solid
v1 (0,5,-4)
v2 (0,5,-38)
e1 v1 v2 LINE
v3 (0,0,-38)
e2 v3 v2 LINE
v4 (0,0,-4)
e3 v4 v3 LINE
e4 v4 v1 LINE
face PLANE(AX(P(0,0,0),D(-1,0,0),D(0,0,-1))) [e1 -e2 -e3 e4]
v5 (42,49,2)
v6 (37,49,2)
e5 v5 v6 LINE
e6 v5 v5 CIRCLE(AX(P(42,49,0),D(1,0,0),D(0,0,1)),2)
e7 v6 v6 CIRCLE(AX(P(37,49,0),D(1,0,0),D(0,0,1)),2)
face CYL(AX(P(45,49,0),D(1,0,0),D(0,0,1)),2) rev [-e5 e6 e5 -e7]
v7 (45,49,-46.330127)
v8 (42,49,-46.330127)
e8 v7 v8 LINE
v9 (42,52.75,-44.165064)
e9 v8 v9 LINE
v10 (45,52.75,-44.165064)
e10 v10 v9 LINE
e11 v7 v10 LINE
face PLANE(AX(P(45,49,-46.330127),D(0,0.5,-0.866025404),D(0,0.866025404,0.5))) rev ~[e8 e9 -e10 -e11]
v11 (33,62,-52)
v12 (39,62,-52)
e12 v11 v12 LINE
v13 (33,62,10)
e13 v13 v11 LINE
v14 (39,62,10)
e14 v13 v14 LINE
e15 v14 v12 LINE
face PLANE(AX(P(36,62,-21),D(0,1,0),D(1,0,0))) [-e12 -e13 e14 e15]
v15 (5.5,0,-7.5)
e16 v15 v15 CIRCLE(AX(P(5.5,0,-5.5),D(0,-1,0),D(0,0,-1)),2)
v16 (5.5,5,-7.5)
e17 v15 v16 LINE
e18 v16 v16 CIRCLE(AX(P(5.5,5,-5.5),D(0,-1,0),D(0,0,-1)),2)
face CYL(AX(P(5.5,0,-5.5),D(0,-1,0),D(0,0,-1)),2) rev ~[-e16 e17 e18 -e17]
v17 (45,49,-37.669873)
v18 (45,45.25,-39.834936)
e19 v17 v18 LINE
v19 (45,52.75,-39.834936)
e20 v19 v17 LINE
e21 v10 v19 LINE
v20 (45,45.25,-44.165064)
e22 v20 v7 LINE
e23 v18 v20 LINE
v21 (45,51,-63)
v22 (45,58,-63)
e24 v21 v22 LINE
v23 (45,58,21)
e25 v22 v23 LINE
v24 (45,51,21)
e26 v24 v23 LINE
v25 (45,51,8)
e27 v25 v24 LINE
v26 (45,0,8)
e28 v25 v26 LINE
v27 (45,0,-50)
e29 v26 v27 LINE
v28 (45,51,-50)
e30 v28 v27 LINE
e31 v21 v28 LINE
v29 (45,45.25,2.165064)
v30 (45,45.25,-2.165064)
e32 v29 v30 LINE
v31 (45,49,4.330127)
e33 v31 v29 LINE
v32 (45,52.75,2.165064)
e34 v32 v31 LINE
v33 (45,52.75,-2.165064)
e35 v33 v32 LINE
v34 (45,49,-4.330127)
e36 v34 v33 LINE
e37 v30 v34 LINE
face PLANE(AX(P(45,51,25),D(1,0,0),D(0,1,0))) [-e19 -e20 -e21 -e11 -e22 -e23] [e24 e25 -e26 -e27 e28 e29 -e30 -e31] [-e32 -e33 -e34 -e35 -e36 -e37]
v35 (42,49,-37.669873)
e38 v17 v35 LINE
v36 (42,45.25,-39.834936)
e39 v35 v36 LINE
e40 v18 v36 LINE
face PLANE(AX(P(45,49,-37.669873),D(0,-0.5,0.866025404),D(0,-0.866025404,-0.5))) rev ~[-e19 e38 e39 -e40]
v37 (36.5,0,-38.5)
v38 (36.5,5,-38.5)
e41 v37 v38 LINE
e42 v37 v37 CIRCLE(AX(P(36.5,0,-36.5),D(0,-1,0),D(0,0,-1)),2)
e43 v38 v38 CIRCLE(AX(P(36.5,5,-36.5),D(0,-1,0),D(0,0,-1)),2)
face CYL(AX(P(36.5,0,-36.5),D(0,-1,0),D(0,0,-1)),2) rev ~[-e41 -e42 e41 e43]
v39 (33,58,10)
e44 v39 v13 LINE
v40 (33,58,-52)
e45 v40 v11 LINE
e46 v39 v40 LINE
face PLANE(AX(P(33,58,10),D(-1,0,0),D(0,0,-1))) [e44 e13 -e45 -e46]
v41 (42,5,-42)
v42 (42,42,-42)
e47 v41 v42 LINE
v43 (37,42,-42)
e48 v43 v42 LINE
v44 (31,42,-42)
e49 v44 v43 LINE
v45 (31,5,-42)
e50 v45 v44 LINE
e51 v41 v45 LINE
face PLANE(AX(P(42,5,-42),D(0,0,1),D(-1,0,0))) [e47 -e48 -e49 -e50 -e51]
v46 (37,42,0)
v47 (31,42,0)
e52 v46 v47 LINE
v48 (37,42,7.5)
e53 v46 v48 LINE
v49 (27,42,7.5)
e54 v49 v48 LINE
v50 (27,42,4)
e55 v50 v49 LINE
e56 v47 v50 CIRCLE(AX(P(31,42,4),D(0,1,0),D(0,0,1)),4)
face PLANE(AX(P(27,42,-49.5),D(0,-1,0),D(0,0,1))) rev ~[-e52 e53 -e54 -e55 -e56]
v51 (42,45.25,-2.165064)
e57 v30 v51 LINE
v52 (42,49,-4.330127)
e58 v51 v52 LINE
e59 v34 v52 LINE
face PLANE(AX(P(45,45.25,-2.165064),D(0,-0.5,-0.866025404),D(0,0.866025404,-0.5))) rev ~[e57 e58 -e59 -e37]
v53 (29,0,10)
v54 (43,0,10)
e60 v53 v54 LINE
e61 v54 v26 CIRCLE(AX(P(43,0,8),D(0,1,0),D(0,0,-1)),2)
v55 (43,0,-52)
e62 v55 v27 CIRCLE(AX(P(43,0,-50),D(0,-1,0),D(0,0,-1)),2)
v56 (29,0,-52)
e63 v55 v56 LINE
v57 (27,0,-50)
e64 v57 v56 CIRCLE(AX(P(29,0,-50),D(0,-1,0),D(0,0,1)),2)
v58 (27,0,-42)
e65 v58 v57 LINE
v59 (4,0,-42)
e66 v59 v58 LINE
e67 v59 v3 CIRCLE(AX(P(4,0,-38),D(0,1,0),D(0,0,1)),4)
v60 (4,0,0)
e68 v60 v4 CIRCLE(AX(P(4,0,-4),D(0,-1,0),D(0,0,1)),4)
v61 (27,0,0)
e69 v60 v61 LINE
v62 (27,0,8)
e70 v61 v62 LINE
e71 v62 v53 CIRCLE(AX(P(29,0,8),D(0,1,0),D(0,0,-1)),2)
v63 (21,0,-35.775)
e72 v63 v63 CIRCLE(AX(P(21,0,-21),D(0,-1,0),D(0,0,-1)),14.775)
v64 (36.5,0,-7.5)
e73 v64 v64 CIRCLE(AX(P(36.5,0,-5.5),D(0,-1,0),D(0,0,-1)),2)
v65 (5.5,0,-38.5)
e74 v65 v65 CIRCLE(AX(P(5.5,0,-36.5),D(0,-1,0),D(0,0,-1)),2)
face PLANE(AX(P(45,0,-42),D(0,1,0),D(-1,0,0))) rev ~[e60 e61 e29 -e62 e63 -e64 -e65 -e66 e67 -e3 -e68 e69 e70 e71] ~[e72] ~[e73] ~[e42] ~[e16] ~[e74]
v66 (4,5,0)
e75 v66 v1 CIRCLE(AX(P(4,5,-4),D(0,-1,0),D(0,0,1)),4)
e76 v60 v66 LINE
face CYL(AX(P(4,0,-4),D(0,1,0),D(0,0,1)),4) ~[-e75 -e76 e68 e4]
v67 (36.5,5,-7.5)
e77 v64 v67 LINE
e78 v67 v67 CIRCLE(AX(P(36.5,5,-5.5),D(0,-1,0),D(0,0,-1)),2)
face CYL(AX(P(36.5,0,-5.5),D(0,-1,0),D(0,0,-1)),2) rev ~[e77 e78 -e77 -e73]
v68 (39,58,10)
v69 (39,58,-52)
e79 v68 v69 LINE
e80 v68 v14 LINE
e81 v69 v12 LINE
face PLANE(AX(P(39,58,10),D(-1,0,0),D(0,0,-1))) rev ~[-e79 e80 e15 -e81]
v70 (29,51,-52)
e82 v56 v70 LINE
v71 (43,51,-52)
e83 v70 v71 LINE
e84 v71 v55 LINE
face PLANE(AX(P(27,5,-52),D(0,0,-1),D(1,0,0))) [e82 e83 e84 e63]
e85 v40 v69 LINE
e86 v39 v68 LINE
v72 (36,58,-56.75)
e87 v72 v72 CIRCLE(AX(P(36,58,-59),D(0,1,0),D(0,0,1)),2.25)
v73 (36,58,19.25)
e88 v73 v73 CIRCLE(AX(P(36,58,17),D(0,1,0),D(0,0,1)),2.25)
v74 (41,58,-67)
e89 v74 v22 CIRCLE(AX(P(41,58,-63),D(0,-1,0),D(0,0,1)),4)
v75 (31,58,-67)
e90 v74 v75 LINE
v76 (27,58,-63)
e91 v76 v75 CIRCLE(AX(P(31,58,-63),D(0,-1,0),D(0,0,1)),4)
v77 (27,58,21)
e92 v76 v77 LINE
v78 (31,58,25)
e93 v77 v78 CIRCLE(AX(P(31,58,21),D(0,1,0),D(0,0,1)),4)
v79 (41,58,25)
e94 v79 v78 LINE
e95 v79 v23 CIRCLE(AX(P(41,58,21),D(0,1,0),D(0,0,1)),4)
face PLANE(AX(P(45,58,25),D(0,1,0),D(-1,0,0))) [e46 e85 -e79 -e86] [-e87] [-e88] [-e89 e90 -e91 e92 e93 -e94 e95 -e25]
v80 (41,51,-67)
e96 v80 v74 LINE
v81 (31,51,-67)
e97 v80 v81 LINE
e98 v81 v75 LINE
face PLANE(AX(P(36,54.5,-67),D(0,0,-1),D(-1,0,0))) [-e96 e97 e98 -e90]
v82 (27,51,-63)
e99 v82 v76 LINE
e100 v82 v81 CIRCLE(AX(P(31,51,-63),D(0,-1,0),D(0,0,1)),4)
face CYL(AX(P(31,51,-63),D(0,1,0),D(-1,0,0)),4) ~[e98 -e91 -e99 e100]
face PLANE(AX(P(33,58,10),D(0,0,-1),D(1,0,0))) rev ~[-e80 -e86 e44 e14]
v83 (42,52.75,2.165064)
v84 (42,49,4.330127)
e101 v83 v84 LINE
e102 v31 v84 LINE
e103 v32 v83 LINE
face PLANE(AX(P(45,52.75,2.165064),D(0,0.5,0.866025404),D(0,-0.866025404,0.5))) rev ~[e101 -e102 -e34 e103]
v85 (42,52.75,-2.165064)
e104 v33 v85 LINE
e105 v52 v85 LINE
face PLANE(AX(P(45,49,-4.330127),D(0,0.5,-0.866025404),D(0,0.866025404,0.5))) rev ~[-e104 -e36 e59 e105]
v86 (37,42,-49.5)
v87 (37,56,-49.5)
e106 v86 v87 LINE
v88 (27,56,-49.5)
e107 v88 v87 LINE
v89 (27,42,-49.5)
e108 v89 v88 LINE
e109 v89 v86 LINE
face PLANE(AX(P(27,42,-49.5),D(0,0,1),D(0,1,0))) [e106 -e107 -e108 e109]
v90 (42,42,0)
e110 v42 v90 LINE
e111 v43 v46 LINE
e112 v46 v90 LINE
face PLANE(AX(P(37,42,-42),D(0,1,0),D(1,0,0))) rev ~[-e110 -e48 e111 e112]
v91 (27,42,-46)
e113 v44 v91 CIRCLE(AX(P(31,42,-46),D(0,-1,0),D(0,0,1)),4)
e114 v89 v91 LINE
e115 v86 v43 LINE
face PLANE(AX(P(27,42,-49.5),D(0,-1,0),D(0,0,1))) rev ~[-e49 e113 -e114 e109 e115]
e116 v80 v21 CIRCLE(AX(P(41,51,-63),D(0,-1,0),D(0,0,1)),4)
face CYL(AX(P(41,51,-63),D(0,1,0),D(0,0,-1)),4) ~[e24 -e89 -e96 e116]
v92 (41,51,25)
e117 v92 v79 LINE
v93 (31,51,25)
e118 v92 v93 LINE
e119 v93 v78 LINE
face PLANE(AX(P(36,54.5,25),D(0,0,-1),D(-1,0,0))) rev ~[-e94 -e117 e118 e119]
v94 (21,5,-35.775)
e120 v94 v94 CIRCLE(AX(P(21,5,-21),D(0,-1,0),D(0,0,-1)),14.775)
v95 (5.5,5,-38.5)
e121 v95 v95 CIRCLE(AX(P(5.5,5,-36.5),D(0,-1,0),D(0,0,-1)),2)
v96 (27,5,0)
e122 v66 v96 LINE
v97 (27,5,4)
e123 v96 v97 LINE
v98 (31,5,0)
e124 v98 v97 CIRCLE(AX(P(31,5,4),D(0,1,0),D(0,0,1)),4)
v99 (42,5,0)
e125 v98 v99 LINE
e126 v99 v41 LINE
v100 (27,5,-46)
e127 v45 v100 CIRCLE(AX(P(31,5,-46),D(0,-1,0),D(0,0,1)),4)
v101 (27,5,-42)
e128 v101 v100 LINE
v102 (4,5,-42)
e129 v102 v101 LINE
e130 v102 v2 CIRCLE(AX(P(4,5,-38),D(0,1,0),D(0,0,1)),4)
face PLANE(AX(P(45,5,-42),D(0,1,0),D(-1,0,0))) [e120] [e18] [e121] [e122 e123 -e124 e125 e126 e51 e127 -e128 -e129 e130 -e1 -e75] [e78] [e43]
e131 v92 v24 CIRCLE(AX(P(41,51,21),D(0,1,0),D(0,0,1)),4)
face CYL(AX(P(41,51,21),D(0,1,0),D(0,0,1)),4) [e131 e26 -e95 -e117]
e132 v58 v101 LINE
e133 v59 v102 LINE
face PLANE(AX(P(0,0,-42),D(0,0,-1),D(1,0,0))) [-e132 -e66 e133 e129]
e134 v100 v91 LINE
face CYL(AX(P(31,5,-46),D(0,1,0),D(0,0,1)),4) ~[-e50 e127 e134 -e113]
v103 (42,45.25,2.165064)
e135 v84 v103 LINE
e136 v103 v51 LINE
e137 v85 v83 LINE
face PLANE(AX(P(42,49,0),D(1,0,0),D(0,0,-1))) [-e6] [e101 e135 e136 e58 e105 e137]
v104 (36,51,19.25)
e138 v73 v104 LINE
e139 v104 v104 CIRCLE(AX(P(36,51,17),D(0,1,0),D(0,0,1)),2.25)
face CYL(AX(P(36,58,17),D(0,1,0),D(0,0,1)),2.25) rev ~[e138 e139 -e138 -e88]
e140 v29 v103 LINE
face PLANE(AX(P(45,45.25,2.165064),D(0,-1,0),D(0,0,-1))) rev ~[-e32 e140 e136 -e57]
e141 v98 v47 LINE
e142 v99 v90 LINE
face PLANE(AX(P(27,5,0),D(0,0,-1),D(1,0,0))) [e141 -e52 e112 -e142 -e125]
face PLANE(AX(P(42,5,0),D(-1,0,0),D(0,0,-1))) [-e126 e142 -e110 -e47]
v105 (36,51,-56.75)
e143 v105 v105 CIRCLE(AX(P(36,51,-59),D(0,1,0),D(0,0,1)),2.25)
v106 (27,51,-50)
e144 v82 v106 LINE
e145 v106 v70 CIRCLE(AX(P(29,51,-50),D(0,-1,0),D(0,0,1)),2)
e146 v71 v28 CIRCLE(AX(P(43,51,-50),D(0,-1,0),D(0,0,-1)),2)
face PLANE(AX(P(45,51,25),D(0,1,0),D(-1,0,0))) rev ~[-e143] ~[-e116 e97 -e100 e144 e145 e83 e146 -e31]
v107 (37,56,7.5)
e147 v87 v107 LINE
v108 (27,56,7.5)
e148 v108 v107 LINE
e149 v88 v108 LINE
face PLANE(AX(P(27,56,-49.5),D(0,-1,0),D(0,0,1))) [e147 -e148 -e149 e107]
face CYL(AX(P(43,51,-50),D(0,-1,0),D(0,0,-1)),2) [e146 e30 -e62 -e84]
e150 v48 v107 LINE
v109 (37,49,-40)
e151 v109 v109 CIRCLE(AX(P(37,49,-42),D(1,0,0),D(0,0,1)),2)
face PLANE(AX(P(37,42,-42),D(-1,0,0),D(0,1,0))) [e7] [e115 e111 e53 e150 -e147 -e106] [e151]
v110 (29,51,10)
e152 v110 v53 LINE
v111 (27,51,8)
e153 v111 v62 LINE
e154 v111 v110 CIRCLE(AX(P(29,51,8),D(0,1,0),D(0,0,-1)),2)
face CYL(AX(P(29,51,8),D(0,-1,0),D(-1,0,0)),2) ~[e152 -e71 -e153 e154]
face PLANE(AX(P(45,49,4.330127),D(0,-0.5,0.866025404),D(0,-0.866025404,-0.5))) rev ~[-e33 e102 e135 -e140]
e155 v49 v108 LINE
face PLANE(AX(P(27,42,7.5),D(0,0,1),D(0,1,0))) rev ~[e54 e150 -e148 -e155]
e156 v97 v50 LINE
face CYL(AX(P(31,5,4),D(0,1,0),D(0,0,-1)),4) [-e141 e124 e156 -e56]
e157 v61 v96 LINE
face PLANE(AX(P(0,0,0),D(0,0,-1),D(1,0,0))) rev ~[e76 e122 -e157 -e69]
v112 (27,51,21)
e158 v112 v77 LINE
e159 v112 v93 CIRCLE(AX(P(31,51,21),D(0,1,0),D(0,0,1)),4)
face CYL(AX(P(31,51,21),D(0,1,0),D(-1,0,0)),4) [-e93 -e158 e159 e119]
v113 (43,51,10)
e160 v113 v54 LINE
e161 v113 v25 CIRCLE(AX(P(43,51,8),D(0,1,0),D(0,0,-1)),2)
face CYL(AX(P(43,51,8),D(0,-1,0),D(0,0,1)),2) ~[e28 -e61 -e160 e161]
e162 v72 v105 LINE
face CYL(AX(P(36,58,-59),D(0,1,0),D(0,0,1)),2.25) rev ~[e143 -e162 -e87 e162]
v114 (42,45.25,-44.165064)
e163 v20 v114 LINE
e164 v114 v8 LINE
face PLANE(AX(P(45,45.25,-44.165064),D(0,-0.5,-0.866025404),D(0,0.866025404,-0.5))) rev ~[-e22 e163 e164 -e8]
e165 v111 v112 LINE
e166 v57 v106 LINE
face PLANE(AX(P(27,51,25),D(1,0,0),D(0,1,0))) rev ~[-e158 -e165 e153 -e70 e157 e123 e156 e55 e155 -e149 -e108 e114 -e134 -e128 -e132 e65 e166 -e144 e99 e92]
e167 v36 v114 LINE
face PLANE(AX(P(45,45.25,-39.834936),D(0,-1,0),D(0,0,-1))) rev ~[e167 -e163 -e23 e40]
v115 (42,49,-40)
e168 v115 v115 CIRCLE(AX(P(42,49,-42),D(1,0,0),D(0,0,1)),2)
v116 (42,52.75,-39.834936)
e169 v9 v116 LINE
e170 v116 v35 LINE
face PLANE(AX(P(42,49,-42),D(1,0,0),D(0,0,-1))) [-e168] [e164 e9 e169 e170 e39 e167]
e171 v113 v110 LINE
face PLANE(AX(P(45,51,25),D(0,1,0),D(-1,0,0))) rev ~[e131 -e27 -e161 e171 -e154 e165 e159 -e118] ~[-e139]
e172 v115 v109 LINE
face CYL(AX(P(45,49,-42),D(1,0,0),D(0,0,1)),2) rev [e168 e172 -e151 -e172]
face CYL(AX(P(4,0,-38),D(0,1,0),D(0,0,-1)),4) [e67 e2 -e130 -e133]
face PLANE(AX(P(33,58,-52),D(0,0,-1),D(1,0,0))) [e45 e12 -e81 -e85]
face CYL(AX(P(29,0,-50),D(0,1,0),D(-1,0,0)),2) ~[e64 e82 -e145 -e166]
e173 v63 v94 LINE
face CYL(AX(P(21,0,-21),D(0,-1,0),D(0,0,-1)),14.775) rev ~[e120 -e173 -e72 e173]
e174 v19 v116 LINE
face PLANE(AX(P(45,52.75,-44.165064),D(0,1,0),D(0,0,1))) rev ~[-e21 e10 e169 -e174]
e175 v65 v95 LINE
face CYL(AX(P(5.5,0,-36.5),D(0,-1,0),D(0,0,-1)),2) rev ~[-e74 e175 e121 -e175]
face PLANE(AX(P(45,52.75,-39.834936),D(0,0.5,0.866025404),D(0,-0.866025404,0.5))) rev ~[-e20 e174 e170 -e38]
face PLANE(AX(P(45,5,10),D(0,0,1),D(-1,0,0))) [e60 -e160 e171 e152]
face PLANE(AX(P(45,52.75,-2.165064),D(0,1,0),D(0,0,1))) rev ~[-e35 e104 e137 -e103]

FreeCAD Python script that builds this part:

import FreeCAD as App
import Part
import Sketcher
Q = App.Units.Quantity


def edges_at(feature, points):
    """Names of the edges that pass closest to the given points."""
    edges = feature.Shape.Edges
    near = lambda p: min(range(len(edges)), key=lambda i: edges[i].distToShape(Part.Vertex(*p))[0])
    return sorted({f"Edge{near(p) + 1}" for p in points})

doc = App.newDocument("Part")
body = doc.addObject("PartDesign::Body", "Body")

sketch1 = doc.addObject("Sketcher::SketchObject", "Sketch")
body.addObject(sketch1)
sketch1.AttachmentSupport = (doc.XZ_Plane, [""])
sketch1.MapMode = "FlatFace"
sketch1.addGeometry(Part.LineSegment(App.Vector(0, -42, 0), App.Vector(0, 0, 0)), False)
sketch1.addGeometry(Part.LineSegment(App.Vector(0, 0, 0), App.Vector(45, 0, 0)), False)
sketch1.addGeometry(Part.LineSegment(App.Vector(45, 0, 0), App.Vector(45, -42, 0)), False)
sketch1.addGeometry(Part.LineSegment(App.Vector(45, -42, 0), App.Vector(0, -42, 0)), False)
sketch1.addConstraint(Sketcher.Constraint("Coincident", 0, 2, 1, 1))
sketch1.addConstraint(Sketcher.Constraint("Coincident", 1, 2, 2, 1))
sketch1.addConstraint(Sketcher.Constraint("Coincident", 2, 2, 3, 1))
sketch1.addConstraint(Sketcher.Constraint("Coincident", 3, 2, 0, 1))
sketch1.addConstraint(Sketcher.Constraint("Vertical", 0))
sketch1.addConstraint(Sketcher.Constraint("Horizontal", 1))
sketch1.addConstraint(Sketcher.Constraint("Vertical", 2))
sketch1.addConstraint(Sketcher.Constraint("Horizontal", 3))
sketch1.addConstraint(Sketcher.Constraint("Coincident", 0, 2, -1, 1))
sketch1.addConstraint(Sketcher.Constraint("DistanceX", 1, 1, 1, 2, Q("45 mm")))
sketch1.addConstraint(Sketcher.Constraint("DistanceY", 0, 1, 0, 2, Q("42 mm")))
pad1 = doc.addObject("PartDesign::Pad", "Pad")
body.addObject(pad1)
pad1.Profile = sketch1
pad1.Length = 5
pad1.Reversed = True

sketch2 = doc.addObject("Sketcher::SketchObject", "Sketch001")
body.addObject(sketch2)
sketch2.AttachmentSupport = (doc.XZ_Plane, [""])
sketch2.MapMode = "FlatFace"
sketch2.addGeometry(Part.Circle(App.Vector(21, -21, 0), App.Vector(0, 0, 1), 14.8), False)
sketch2.addGeometry(Part.Circle(App.Vector(36.5, -5.5, 0), App.Vector(0, 0, 1), 2), False)
sketch2.addGeometry(Part.Circle(App.Vector(5.5, -5.5, 0), App.Vector(0, 0, 1), 2), False)
sketch2.addGeometry(Part.Circle(App.Vector(5.5, -36.5, 0), App.Vector(0, 0, 1), 2), False)
sketch2.addGeometry(Part.Circle(App.Vector(36.5, -36.5, 0), App.Vector(0, 0, 1), 2), False)
sketch2.addConstraint(Sketcher.Constraint("Equal", 1, 2))
sketch2.addConstraint(Sketcher.Constraint("Equal", 2, 3))
sketch2.addConstraint(Sketcher.Constraint("Equal", 3, 4))
sketch2.addConstraint(Sketcher.Constraint("Horizontal", 1, 3, 2, 3))
sketch2.addConstraint(Sketcher.Constraint("Horizontal", 3, 3, 4, 3))
sketch2.addConstraint(Sketcher.Constraint("Vertical", 2, 3, 3, 3))
sketch2.addConstraint(Sketcher.Constraint("Vertical", 1, 3, 4, 3))
sketch2.addConstraint(Sketcher.Constraint("Diameter", 1, Q("4 mm")))
sketch2.addConstraint(Sketcher.Constraint("Diameter", 0, Q("29.55 mm")))
sketch2.addConstraint(Sketcher.Constraint("DistanceX", -1, 1, 0, 3, Q("21 mm")))
sketch2.addConstraint(Sketcher.Constraint("DistanceY", 0, 3, -1, 1, Q("21 mm")))
sketch2.addConstraint(Sketcher.Constraint("DistanceX", 2, 3, 1, 3, Q("31 mm")))
sketch2.addConstraint(Sketcher.Constraint("DistanceY", 3, 3, 2, 3, Q("31 mm")))
sketch2.addConstraint(Sketcher.Constraint("DistanceX", -1, 1, 1, 3, Q("36.5 mm")))
sketch2.addConstraint(Sketcher.Constraint("DistanceY", 1, 3, -1, 1, Q("5.5 mm")))
pocket1 = doc.addObject("PartDesign::Pocket", "Pocket")
body.addObject(pocket1)
pocket1.Profile = sketch2
pocket1.Length = 13

sketch3 = doc.addObject("Sketcher::SketchObject", "Sketch002")
body.addObject(sketch3)
sketch3.AttachmentSupport = (doc.XY_Plane, [""])
sketch3.MapMode = "FlatFace"
sketch3.addGeometry(Part.LineSegment(App.Vector(27, 5, 0), App.Vector(27, 0, 0)), False)
sketch3.addGeometry(Part.LineSegment(App.Vector(27, 0, 0), App.Vector(45, 0, 0)), False)
sketch3.addGeometry(Part.LineSegment(App.Vector(45, 0, 0), App.Vector(45, 5, 0)), False)
sketch3.addGeometry(Part.LineSegment(App.Vector(45, 5, 0), App.Vector(27, 5, 0)), False)
sketch3.addConstraint(Sketcher.Constraint("Coincident", 0, 2, 1, 1))
sketch3.addConstraint(Sketcher.Constraint("Coincident", 1, 2, 2, 1))
sketch3.addConstraint(Sketcher.Constraint("Coincident", 2, 2, 3, 1))
sketch3.addConstraint(Sketcher.Constraint("Coincident", 3, 2, 0, 1))
sketch3.addConstraint(Sketcher.Constraint("Vertical", 0))
sketch3.addConstraint(Sketcher.Constraint("Horizontal", 1))
sketch3.addConstraint(Sketcher.Constraint("Vertical", 2))
sketch3.addConstraint(Sketcher.Constraint("Horizontal", 3))
sketch3.addConstraint(Sketcher.Constraint("PointOnObject", 0, 2, -1))
sketch3.addConstraint(Sketcher.Constraint("DistanceX", 1, 1, 1, 2, Q("18 mm")))
sketch3.addConstraint(Sketcher.Constraint("DistanceY", 0, 2, 0, 1, Q("5 mm")))
sketch3.addConstraint(Sketcher.Constraint("DistanceX", -1, 1, 0, 2, Q("27 mm")))
pad2 = doc.addObject("PartDesign::Pad", "Pad001")
body.addObject(pad2)
pad2.Profile = sketch3
pad2.Length = 10

sketch4 = doc.addObject("Sketcher::SketchObject", "Sketch003")
body.addObject(sketch4)
sketch4.AttachmentSupport = (doc.XY_Plane, [""])
sketch4.MapMode = "FlatFace"
sketch4.AttachmentOffset = App.Placement(App.Vector(0, 0, -42), App.Rotation())
sketch4.addGeometry(Part.LineSegment(App.Vector(45, 5, 0), App.Vector(45, 0, 0)), False)
sketch4.addGeometry(Part.LineSegment(App.Vector(45, 0, 0), App.Vector(27, 0, 0)), False)
sketch4.addGeometry(Part.LineSegment(App.Vector(27, 0, 0), App.Vector(27, 5, 0)), False)
sketch4.addGeometry(Part.LineSegment(App.Vector(27, 5, 0), App.Vector(45, 5, 0)), False)
sketch4.addConstraint(Sketcher.Constraint("Coincident", 0, 2, 1, 1))
sketch4.addConstraint(Sketcher.Constraint("Coincident", 1, 2, 2, 1))
sketch4.addConstraint(Sketcher.Constraint("Coincident", 2, 2, 3, 1))
sketch4.addConstraint(Sketcher.Constraint("Coincident", 3, 2, 0, 1))
sketch4.addConstraint(Sketcher.Constraint("Vertical", 0))
sketch4.addConstraint(Sketcher.Constraint("Horizontal", 1))
sketch4.addConstraint(Sketcher.Constraint("Vertical", 2))
sketch4.addConstraint(Sketcher.Constraint("Horizontal", 3))
sketch4.addConstraint(Sketcher.Constraint("PointOnObject", 0, 2, -1))
sketch4.addConstraint(Sketcher.Constraint("DistanceX", 1, 2, 1, 1, Q("18 mm")))
sketch4.addConstraint(Sketcher.Constraint("DistanceY", 0, 2, 0, 1, Q("5 mm")))
sketch4.addConstraint(Sketcher.Constraint("DistanceX", -1, 1, 0, 2, Q("45 mm")))
pad3 = doc.addObject("PartDesign::Pad", "Pad002")
body.addObject(pad3)
pad3.Profile = sketch4
pad3.Length = 10
pad3.Reversed = True

sketch5 = doc.addObject("Sketcher::SketchObject", "Sketch004")
body.addObject(sketch5)
sketch5.AttachmentSupport = (doc.XZ_Plane, [""])
sketch5.MapMode = "FlatFace"
sketch5.AttachmentOffset = App.Placement(App.Vector(0, 0, -5), App.Rotation())
sketch5.addGeometry(Part.LineSegment(App.Vector(45, -52, 0), App.Vector(27, -52, 0)), False)
sketch5.addGeometry(Part.LineSegment(App.Vector(27, -52, 0), App.Vector(27, -42, 0)), False)
sketch5.addGeometry(Part.LineSegment(App.Vector(27, -42, 0), App.Vector(42, -42, 0)), False)
sketch5.addGeometry(Part.LineSegment(App.Vector(42, -42, 0), App.Vector(42, 0, 0)), False)
sketch5.addGeometry(Part.LineSegment(App.Vector(42, 0, 0), App.Vector(27, 0, 0)), False)
sketch5.addGeometry(Part.LineSegment(App.Vector(27, 0, 0), App.Vector(27, 10, 0)), False)
sketch5.addGeometry(Part.LineSegment(App.Vector(27, 10, 0), App.Vector(45, 10, 0)), False)
sketch5.addGeometry(Part.LineSegment(App.Vector(45, 10, 0), App.Vector(45, -52, 0)), False)
sketch5.addConstraint(Sketcher.Constraint("Coincident", 0, 2, 1, 1))
sketch5.addConstraint(Sketcher.Constraint("Coincident", 1, 2, 2, 1))
sketch5.addConstraint(Sketcher.Constraint("Coincident", 2, 2, 3, 1))
sketch5.addConstraint(Sketcher.Constraint("Coincident", 3, 2, 4, 1))
sketch5.addConstraint(Sketcher.Constraint("Coincident", 4, 2, 5, 1))
sketch5.addConstraint(Sketcher.Constraint("Coincident", 5, 2, 6, 1))
sketch5.addConstraint(Sketcher.Constraint("Coincident", 6, 2, 7, 1))
sketch5.addConstraint(Sketcher.Constraint("Coincident", 7, 2, 0, 1))
sketch5.addConstraint(Sketcher.Constraint("Horizontal", 0))
sketch5.addConstraint(Sketcher.Constraint("Vertical", 1))
sketch5.addConstraint(Sketcher.Constraint("Horizontal", 2))
sketch5.addConstraint(Sketcher.Constraint("Vertical", 3))
sketch5.addConstraint(Sketcher.Constraint("Horizontal", 4))
sketch5.addConstraint(Sketcher.Constraint("Vertical", 5))
sketch5.addConstraint(Sketcher.Constraint("Horizontal", 6))
sketch5.addConstraint(Sketcher.Constraint("Vertical", 7))
sketch5.addConstraint(Sketcher.Constraint("PointOnObject", 3, 2, -1))
sketch5.addConstraint(Sketcher.Constraint("Vertical", 1, 2, 4, 2))
sketch5.addConstraint(Sketcher.Constraint("Equal", 1, 5))
sketch5.addConstraint(Sketcher.Constraint("DistanceX", 0, 2, 0, 1, Q("18 mm")))
sketch5.addConstraint(Sketcher.Constraint("DistanceX", 2, 1, 2, 2, Q("15 mm")))
sketch5.addConstraint(Sketcher.Constraint("DistanceY", 1, 1, 1, 2, Q("10 mm")))
sketch5.addConstraint(Sketcher.Constraint("DistanceY", 3, 1, 3, 2, Q("42 mm")))
sketch5.addConstraint(Sketcher.Constraint("DistanceX", -1, 1, 0, 2, Q("27 mm")))
pad4 = doc.addObject("PartDesign::Pad", "Pad003")
body.addObject(pad4)
pad4.Profile = sketch5
pad4.Length = 53
pad4.Reversed = True

sketch6 = doc.addObject("Sketcher::SketchObject", "Sketch005")
body.addObject(sketch6)
sketch6.AttachmentSupport = (doc.XY_Plane, [""])
sketch6.MapMode = "FlatFace"
sketch6.AttachmentOffset = App.Placement(App.Vector(0, 0, -52), App.Rotation())
sketch6.addGeometry(Part.LineSegment(App.Vector(45, 58, 0), App.Vector(45, 51, 0)), False)
sketch6.addGeometry(Part.LineSegment(App.Vector(45, 51, 0), App.Vector(27, 51, 0)), False)
sketch6.addGeometry(Part.LineSegment(App.Vector(27, 51, 0), App.Vector(27, 58, 0)), False)
sketch6.addGeometry(Part.LineSegment(App.Vector(27, 58, 0), App.Vector(45, 58, 0)), False)
sketch6.addConstraint(Sketcher.Constraint("Coincident", 0, 2, 1, 1))
sketch6.addConstraint(Sketcher.Constraint("Coincident", 1, 2, 2, 1))
sketch6.addConstraint(Sketcher.Constraint("Coincident", 2, 2, 3, 1))
sketch6.addConstraint(Sketcher.Constraint("Coincident", 3, 2, 0, 1))
sketch6.addConstraint(Sketcher.Constraint("Vertical", 0))
sketch6.addConstraint(Sketcher.Constraint("Horizontal", 1))
sketch6.addConstraint(Sketcher.Constraint("Vertical", 2))
sketch6.addConstraint(Sketcher.Constraint("Horizontal", 3))
sketch6.addConstraint(Sketcher.Constraint("DistanceX", 1, 2, 1, 1, Q("18 mm")))
sketch6.addConstraint(Sketcher.Constraint("DistanceY", 0, 2, 0, 1, Q("7 mm")))
sketch6.addConstraint(Sketcher.Constraint("DistanceX", -1, 1, 0, 2, Q("45 mm")))
sketch6.addConstraint(Sketcher.Constraint("DistanceY", -1, 1, 0, 2, Q("51 mm")))
pad5 = doc.addObject("PartDesign::Pad", "Pad004")
body.addObject(pad5)
pad5.Profile = sketch6
pad5.Type = "TwoLengths"
pad5.Length = 15
pad5.Length2 = 77
pad5.Reversed = True

sketch7 = doc.addObject("Sketcher::SketchObject", "Sketch006")
body.addObject(sketch7)
sketch7.AttachmentSupport = (doc.YZ_Plane, [""])
sketch7.MapMode = "FlatFace"
sketch7.AttachmentOffset = App.Placement(App.Vector(0, 0, 27), App.Rotation())
sketch7.addGeometry(Part.LineSegment(App.Vector(56, -50, 0), App.Vector(42, -50, 0)), False)
sketch7.addGeometry(Part.LineSegment(App.Vector(42, -50, 0), App.Vector(42, 8, 0)), False)
sketch7.addGeometry(Part.LineSegment(App.Vector(42, 8, 0), App.Vector(56, 8, 0)), False)
sketch7.addGeometry(Part.LineSegment(App.Vector(56, 8, 0), App.Vector(56, -50, 0)), False)
sketch7.addConstraint(Sketcher.Constraint("Coincident", 0, 2, 1, 1))
sketch7.addConstraint(Sketcher.Constraint("Coincident", 1, 2, 2, 1))
sketch7.addConstraint(Sketcher.Constraint("Coincident", 2, 2, 3, 1))
sketch7.addConstraint(Sketcher.Constraint("Coincident", 3, 2, 0, 1))
sketch7.addConstraint(Sketcher.Constraint("Horizontal", 0))
sketch7.addConstraint(Sketcher.Constraint("Vertical", 1))
sketch7.addConstraint(Sketcher.Constraint("Horizontal", 2))
sketch7.addConstraint(Sketcher.Constraint("Vertical", 3))
sketch7.addConstraint(Sketcher.Constraint("DistanceX", 0, 2, 0, 1, Q("14 mm")))
sketch7.addConstraint(Sketcher.Constraint("DistanceY", 1, 1, 1, 2, Q("57 mm")))
sketch7.addConstraint(Sketcher.Constraint("DistanceX", -1, 1, 0, 2, Q("42 mm")))
sketch7.addConstraint(Sketcher.Constraint("DistanceY", 0, 2, -1, 1, Q("49.5 mm")))
pocket2 = doc.addObject("PartDesign::Pocket", "Pocket001")
body.addObject(pocket2)
pocket2.Profile = sketch7
pocket2.Length = 10
pocket2.Reversed = True

sketch8 = doc.addObject("Sketcher::SketchObject", "Sketch007")
body.addObject(sketch8)
sketch8.AttachmentSupport = (doc.XZ_Plane, [""])
sketch8.MapMode = "FlatFace"
sketch8.AttachmentOffset = App.Placement(App.Vector(0, 0, -58), App.Rotation())
sketch8.addGeometry(Part.Circle(App.Vector(36, 17, 0), App.Vector(0, 0, 1), 2.2), False)
sketch8.addGeometry(Part.Circle(App.Vector(36, -59, 0), App.Vector(0, 0, 1), 2.2), False)
sketch8.addConstraint(Sketcher.Constraint("Equal", 0, 1))
sketch8.addConstraint(Sketcher.Constraint("Vertical", 0, 3, 1, 3))
sketch8.addConstraint(Sketcher.Constraint("Diameter", 0, Q("4.5 mm")))
sketch8.addConstraint(Sketcher.Constraint("DistanceX", -1, 1, 0, 3, Q("36 mm")))
sketch8.addConstraint(Sketcher.Constraint("DistanceY", -1, 1, 0, 3, Q("17 mm")))
sketch8.addConstraint(Sketcher.Constraint("DistanceY", 1, 3, -1, 1, Q("59 mm")))
pocket3 = doc.addObject("PartDesign::Pocket", "Pocket002")
body.addObject(pocket3)
pocket3.Profile = sketch8
pocket3.Length = 10
pocket3.Reversed = True

sketch9 = doc.addObject("Sketcher::SketchObject", "Sketch008")
body.addObject(sketch9)
sketch9.AttachmentSupport = (doc.XZ_Plane, [""])
sketch9.MapMode = "FlatFace"
sketch9.AttachmentOffset = App.Placement(App.Vector(0, 0, -58), App.Rotation())
sketch9.addGeometry(Part.LineSegment(App.Vector(33, -52, 0), App.Vector(33, 10, 0)), False)
sketch9.addGeometry(Part.LineSegment(App.Vector(33, 10, 0), App.Vector(39, 10, 0)), False)
sketch9.addGeometry(Part.LineSegment(App.Vector(39, 10, 0), App.Vector(39, -52, 0)), False)
sketch9.addGeometry(Part.LineSegment(App.Vector(39, -52, 0), App.Vector(33, -52, 0)), False)
sketch9.addConstraint(Sketcher.Constraint("Coincident", 0, 2, 1, 1))
sketch9.addConstraint(Sketcher.Constraint("Coincident", 1, 2, 2, 1))
sketch9.addConstraint(Sketcher.Constraint("Coincident", 2, 2, 3, 1))
sketch9.addConstraint(Sketcher.Constraint("Coincident", 3, 2, 0, 1))
sketch9.addConstraint(Sketcher.Constraint("Vertical", 0))
sketch9.addConstraint(Sketcher.Constraint("Horizontal", 1))
sketch9.addConstraint(Sketcher.Constraint("Vertical", 2))
sketch9.addConstraint(Sketcher.Constraint("Horizontal", 3))
sketch9.addConstraint(Sketcher.Constraint("DistanceX", 1, 1, 1, 2, Q("6 mm")))
sketch9.addConstraint(Sketcher.Constraint("DistanceY", 0, 1, 0, 2, Q("62 mm")))
sketch9.addConstraint(Sketcher.Constraint("DistanceX", -1, 1, 0, 2, Q("33 mm")))
sketch9.addConstraint(Sketcher.Constraint("DistanceY", -1, 1, 0, 2, Q("10 mm")))
pad6 = doc.addObject("PartDesign::Pad", "Pad005")
body.addObject(pad6)
pad6.Profile = sketch9
pad6.Length = 4
pad6.Reversed = True

sketch10 = doc.addObject("Sketcher::SketchObject", "Sketch009")
body.addObject(sketch10)
sketch10.AttachmentSupport = (doc.XY_Plane, [""])
sketch10.MapMode = "FlatFace"
sketch10.AttachmentOffset = App.Placement(App.Vector(0, 0, -42), App.Rotation())
sketch10.addGeometry(Part.LineSegment(App.Vector(37, 52, 0), App.Vector(37, 42, 0)), False)
sketch10.addGeometry(Part.LineSegment(App.Vector(37, 42, 0), App.Vector(42, 42, 0)), False)
sketch10.addGeometry(Part.LineSegment(App.Vector(42, 42, 0), App.Vector(42, 52, 0)), False)
sketch10.addGeometry(Part.LineSegment(App.Vector(42, 52, 0), App.Vector(37, 52, 0)), False)
sketch10.addConstraint(Sketcher.Constraint("Coincident", 0, 2, 1, 1))
sketch10.addConstraint(Sketcher.Constraint("Coincident", 1, 2, 2, 1))
sketch10.addConstraint(Sketcher.Constraint("Coincident", 2, 2, 3, 1))
sketch10.addConstraint(Sketcher.Constraint("Coincident", 3, 2, 0, 1))
sketch10.addConstraint(Sketcher.Constraint("Vertical", 0))
sketch10.addConstraint(Sketcher.Constraint("Horizontal", 1))
sketch10.addConstraint(Sketcher.Constraint("Vertical", 2))
sketch10.addConstraint(Sketcher.Constraint("Horizontal", 3))
sketch10.addConstraint(Sketcher.Constraint("DistanceX", 1, 1, 1, 2, Q("5 mm")))
sketch10.addConstraint(Sketcher.Constraint("DistanceX", -1, 1, 0, 2, Q("37 mm")))
sketch10.addConstraint(Sketcher.Constraint("DistanceY", -1, 1, 0, 2, Q("42 mm")))
sketch10.addConstraint(Sketcher.Constraint("DistanceY", 0, 2, 0, 1, Q("9.702737 mm")))
pad7 = doc.addObject("PartDesign::Pad", "Pad006")
body.addObject(pad7)
pad7.Profile = sketch10
pad7.Length = 42

sketch11 = doc.addObject("Sketcher::SketchObject", "Sketch010")
body.addObject(sketch11)
sketch11.AttachmentSupport = (doc.YZ_Plane, [""])
sketch11.MapMode = "FlatFace"
sketch11.AttachmentOffset = App.Placement(App.Vector(0, 0, 45), App.Rotation())
sketch11.addGeometry(Part.Circle(App.Vector(49, -42, 0), App.Vector(0, 0, 1), 2), False)
sketch11.addGeometry(Part.Circle(App.Vector(49, 0, 0), App.Vector(0, 0, 1), 2), False)
sketch11.addConstraint(Sketcher.Constraint("Equal", 0, 1))
sketch11.addConstraint(Sketcher.Constraint("PointOnObject", 1, 3, -1))
sketch11.addConstraint(Sketcher.Constraint("Vertical", 0, 3, 1, 3))
sketch11.addConstraint(Sketcher.Constraint("Diameter", 0, Q("4 mm")))
sketch11.addConstraint(Sketcher.Constraint("DistanceX", -1, 1, 0, 3, Q("49 mm")))
sketch11.addConstraint(Sketcher.Constraint("DistanceY", 0, 3, -1, 1, Q("42 mm")))
pocket4 = doc.addObject("PartDesign::Pocket", "Pocket003")
body.addObject(pocket4)
pocket4.Profile = sketch11
pocket4.Length = 16

sketch12 = doc.addObject("Sketcher::SketchObject", "Sketch011")
body.addObject(sketch12)
sketch12.AttachmentSupport = (doc.YZ_Plane, [""])
sketch12.MapMode = "FlatFace"
sketch12.AttachmentOffset = App.Placement(App.Vector(0, 0, 45), App.Rotation())
sketch12.addGeometry(Part.LineSegment(App.Vector(52.8, -2.2, 0), App.Vector(52.8, 2.2, 0)), False)
sketch12.addGeometry(Part.LineSegment(App.Vector(52.8, 2.2, 0), App.Vector(49, 4.3, 0)), False)
sketch12.addGeometry(Part.LineSegment(App.Vector(49, 4.3, 0), App.Vector(45.2, 2.2, 0)), False)
sketch12.addGeometry(Part.LineSegment(App.Vector(45.2, 2.2, 0), App.Vector(45.2, -2.2, 0)), False)
sketch12.addGeometry(Part.LineSegment(App.Vector(45.2, -2.2, 0), App.Vector(49, -4.3, 0)), False)
sketch12.addGeometry(Part.LineSegment(App.Vector(49, -4.3, 0), App.Vector(52.8, -2.2, 0)), False)
sketch12.addGeometry(Part.LineSegment(App.Vector(52.8, -44.2, 0), App.Vector(52.8, -39.8, 0)), False)
sketch12.addGeometry(Part.LineSegment(App.Vector(52.8, -39.8, 0), App.Vector(49, -37.7, 0)), False)
sketch12.addGeometry(Part.LineSegment(App.Vector(49, -37.7, 0), App.Vector(45.2, -39.8, 0)), False)
sketch12.addGeometry(Part.LineSegment(App.Vector(45.2, -39.8, 0), App.Vector(45.2, -44.2, 0)), False)
sketch12.addGeometry(Part.LineSegment(App.Vector(45.2, -44.2, 0), App.Vector(49, -46.3, 0)), False)
sketch12.addGeometry(Part.LineSegment(App.Vector(49, -46.3, 0), App.Vector(52.8, -44.2, 0)), False)
sketch12.addConstraint(Sketcher.Constraint("Coincident", 0, 2, 1, 1))
sketch12.addConstraint(Sketcher.Constraint("Coincident", 1, 2, 2, 1))
sketch12.addConstraint(Sketcher.Constraint("Coincident", 2, 2, 3, 1))
sketch12.addConstraint(Sketcher.Constraint("Coincident", 3, 2, 4, 1))
sketch12.addConstraint(Sketcher.Constraint("Coincident", 4, 2, 5, 1))
sketch12.addConstraint(Sketcher.Constraint("Coincident", 5, 2, 0, 1))
sketch12.addConstraint(Sketcher.Constraint("Coincident", 6, 2, 7, 1))
sketch12.addConstraint(Sketcher.Constraint("Coincident", 7, 2, 8, 1))
sketch12.addConstraint(Sketcher.Constraint("Coincident", 8, 2, 9, 1))
sketch12.addConstraint(Sketcher.Constraint("Coincident", 9, 2, 10, 1))
sketch12.addConstraint(Sketcher.Constraint("Coincident", 10, 2, 11, 1))
sketch12.addConstraint(Sketcher.Constraint("Coincident", 11, 2, 6, 1))
sketch12.addConstraint(Sketcher.Constraint("Vertical", 0))
sketch12.addConstraint(Sketcher.Constraint("Vertical", 3))
sketch12.addConstraint(Sketcher.Constraint("Vertical", 6))
sketch12.addConstraint(Sketcher.Constraint("Vertical", 9))
sketch12.addConstraint(Sketcher.Constraint("Symmetric", 1, 2, 4, 2, -1))
sketch12.addConstraint(Sketcher.Constraint("Parallel", 1, 4))
sketch12.addConstraint(Sketcher.Constraint("Parallel", 2, 5))
sketch12.addConstraint(Sketcher.Constraint("Parallel", 4, 7))
sketch12.addConstraint(Sketcher.Constraint("Parallel", 5, 8))
sketch12.addConstraint(Sketcher.Constraint("Parallel", 7, 10))
sketch12.addConstraint(Sketcher.Constraint("Parallel", 8, 11))
sketch12.addConstraint(Sketcher.Constraint("Horizontal", 0, 2, 2, 2))
sketch12.addConstraint(Sketcher.Constraint("Horizontal", 3, 2, 5, 2))
sketch12.addConstraint(Sketcher.Constraint("Horizontal", 6, 2, 8, 2))
sketch12.addConstraint(Sketcher.Constraint("Horizontal", 9, 2, 11, 2))
sketch12.addConstraint(Sketcher.Constraint("Vertical", 5, 2, 6, 2))
sketch12.addConstraint(Sketcher.Constraint("Vertical", 4, 2, 7, 2))
sketch12.addConstraint(Sketcher.Constraint("Equal", 3, 6))
sketch12.addConstraint(Sketcher.Constraint("Angle", 1, Q("150 deg")))
sketch12.addConstraint(Sketcher.Constraint("DistanceX", -1, 1, 1, 2, Q("49 mm")))
sketch12.addConstraint(Sketcher.Constraint("DistanceY", 6, 2, 0, 2, Q("42 mm")))
sketch12.addConstraint(Sketcher.Constraint("DistanceX", 2, 2, 0, 2, Q("7.5 mm")))
sketch12.addConstraint(Sketcher.Constraint("DistanceY", 0, 1, 0, 2, Q("4.330127 mm")))
pocket5 = doc.addObject("PartDesign::Pocket", "Pocket004")
body.addObject(pocket5)
pocket5.Profile = sketch12
pocket5.Length = 3
doc.recompute()

fillet = doc.addObject("PartDesign::Fillet", "Fillet")
body.addObject(fillet)
fillet.Base = (pocket5, edges_at(pocket5, [
    (27, 23.5, 0),
    (27, 23.5, -42),
    (0, 2.5, -42),
    (0, 2.5, 0),
    (45, 54.5, 25),
    (27, 54.5, 25),
    (45, 54.5, -67),
    (27, 54.5, -67),
]))
fillet.Radius = 4
doc.recompute()

fillet2 = doc.addObject("PartDesign::Fillet", "Fillet001")
body.addObject(fillet2)
fillet2.Base = (fillet, edges_at(fillet, [
    (45, 25.5, 10),
    (27, 25.5, -52),
    (45, 25.5, -52),
    (27, 25.5, 10),
]))
fillet2.Radius = 2

doc.recompute()
